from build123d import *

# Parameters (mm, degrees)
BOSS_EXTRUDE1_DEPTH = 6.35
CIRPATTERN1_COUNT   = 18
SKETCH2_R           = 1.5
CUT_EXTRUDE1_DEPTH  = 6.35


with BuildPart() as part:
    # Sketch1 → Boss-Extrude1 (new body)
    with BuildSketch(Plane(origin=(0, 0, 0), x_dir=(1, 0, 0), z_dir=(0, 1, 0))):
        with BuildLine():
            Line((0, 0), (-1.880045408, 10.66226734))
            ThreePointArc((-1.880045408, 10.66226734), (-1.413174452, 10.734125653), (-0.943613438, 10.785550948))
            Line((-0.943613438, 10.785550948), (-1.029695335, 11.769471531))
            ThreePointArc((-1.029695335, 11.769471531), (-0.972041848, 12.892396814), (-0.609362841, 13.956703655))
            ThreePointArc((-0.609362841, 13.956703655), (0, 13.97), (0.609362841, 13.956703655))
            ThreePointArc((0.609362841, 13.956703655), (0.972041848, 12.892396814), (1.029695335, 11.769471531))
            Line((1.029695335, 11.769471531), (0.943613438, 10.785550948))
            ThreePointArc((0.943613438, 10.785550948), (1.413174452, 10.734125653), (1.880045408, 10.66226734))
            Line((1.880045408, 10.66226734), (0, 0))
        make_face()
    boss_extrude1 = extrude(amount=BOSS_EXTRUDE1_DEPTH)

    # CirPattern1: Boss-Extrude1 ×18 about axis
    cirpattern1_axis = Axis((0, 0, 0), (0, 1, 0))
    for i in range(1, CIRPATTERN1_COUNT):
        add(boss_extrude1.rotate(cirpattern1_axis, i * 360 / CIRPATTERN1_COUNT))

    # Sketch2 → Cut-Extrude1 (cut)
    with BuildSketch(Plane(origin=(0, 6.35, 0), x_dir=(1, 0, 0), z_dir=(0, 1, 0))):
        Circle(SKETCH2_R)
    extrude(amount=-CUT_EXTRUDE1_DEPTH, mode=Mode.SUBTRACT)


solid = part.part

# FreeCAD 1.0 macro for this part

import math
import FreeCAD as App
import Part
import Sketcher

V = App.Vector
Q = App.Units.Quantity

doc = App.newDocument("Part")
body = doc.addObject("PartDesign::Body", "Body")

# Sketch on XZ plane
sketch1 = body.newObject("Sketcher::SketchObject", "Sketch")
sketch1.AttachmentSupport = (doc.getObject("XZ_Plane"), [""])
sketch1.MapMode = "FlatFace"
sketch1.addGeometry(Part.LineSegment(V(-1.9, -10.7, 0), V(0, 0, 0)), False)
sketch1.addGeometry(Part.LineSegment(V(0, 0, 0), V(1.9, -10.7, 0)), False)
sketch1.addGeometry(Part.ArcOfCircle(Part.Circle(V(0, 0, 0), V(0, 0, 1), 10.8), math.radians(-85), math.radians(-80)), False)
sketch1.addGeometry(Part.LineSegment(V(0.9, -10.8, 0), V(1, -11.8, 0)), False)
sketch1.addGeometry(Part.ArcOfCircle(Part.Circle(V(-3, -12.1, 0), V(0, 0, 1), 4.1), math.radians(-27), math.radians(5)), False)
sketch1.addGeometry(Part.ArcOfCircle(Part.Circle(V(0, 0, 0), V(0, 0, 1), 14), math.radians(-92.5), math.radians(-87.5)), False)
sketch1.addGeometry(Part.ArcOfCircle(Part.Circle(V(3, -12.1, 0), V(0, 0, 1), 4.1), math.radians(175), math.radians(207)), False)
sketch1.addGeometry(Part.LineSegment(V(-1, -11.8, 0), V(-0.9, -10.8, 0)), False)
sketch1.addGeometry(Part.ArcOfCircle(Part.Circle(V(0, 0, 0), V(0, 0, 1), 10.8), math.radians(-100), math.radians(-95)), False)
sketch1.addConstraint(Sketcher.Constraint("Coincident", 0, 2, 1, 1))
sketch1.addConstraint(Sketcher.Constraint("Coincident", 1, 2, 2, 2))
sketch1.addConstraint(Sketcher.Constraint("Coincident", 2, 1, 3, 1))
sketch1.addConstraint(Sketcher.Constraint("Tangent", 3, 2, 4, 2))
sketch1.addConstraint(Sketcher.Constraint("Coincident", 4, 1, 5, 2))
sketch1.addConstraint(Sketcher.Constraint("Coincident", 5, 1, 6, 2))
sketch1.addConstraint(Sketcher.Constraint("Tangent", 6, 1, 7, 1))
sketch1.addConstraint(Sketcher.Constraint("Coincident", 7, 2, 8, 2))
sketch1.addConstraint(Sketcher.Constraint("Coincident", 8, 1, 0, 1))
sketch1.addConstraint(Sketcher.Constraint("Coincident", 2, 3, -1, 1))
sketch1.addConstraint(Sketcher.Constraint("Coincident", 5, 3, -1, 1))
sketch1.addConstraint(Sketcher.Constraint("Coincident", 8, 3, -1, 1))
sketch1.addConstraint(Sketcher.Constraint("Coincident", 0, 2, -1, 1))
sketch1.addConstraint(Sketcher.Constraint("Equal", 4, 6))
sketch1.addConstraint(Sketcher.Constraint("Equal", 2, 8))
sketch1.addConstraint(Sketcher.Constraint("Symmetric", 4, 3, 6, 3, -2))
sketch1.addConstraint(Sketcher.Constraint("Horizontal", 3, 2, 6, 1))
sketch1.addConstraint(Sketcher.Constraint("Horizontal", 1, 2, 8, 1))
sketch1.addConstraint(Sketcher.Constraint("Radius", 5, Q("0.55 in")))
sketch1.addConstraint(Sketcher.Constraint("Angle", 0, Q("80 deg")))
sketch1.addConstraint(Sketcher.Constraint("Angle", 3, Q("-85 deg")))
sketch1.addConstraint(Sketcher.Constraint("Radius", 2, 10.82675))
sketch1.addConstraint(Sketcher.Constraint("Radius", 4, 4.070369))
sketch1.addConstraint(Sketcher.Constraint("DistanceX", 4, 3, 2, 1, 3.968799))
sketch1.addConstraint(Sketcher.Constraint("DistanceY", 2, 1, -1, 1, 10.785551))
pad1 = body.newObject("PartDesign::Pad", "Pad")
pad1.Profile = sketch1
pad1.Length = Q("0.25 in")
pad1.Reversed = True
doc.recompute()

polarpattern = body.newObject("PartDesign::PolarPattern", "PolarPattern")
polarpattern.Originals = [pad1]
polarpattern.Axis = (doc.getObject("Y_Axis"), [""])
polarpattern.Angle = 360
polarpattern.Occurrences = 18
body.Tip = polarpattern

# Sketch on XZ plane
sketch2 = body.newObject("Sketcher::SketchObject", "Sketch001")
sketch2.AttachmentSupport = (doc.getObject("XZ_Plane"), [""])
sketch2.MapMode = "FlatFace"
sketch2.AttachmentOffset = App.Placement(V(0, 0, -0.25 * 25.4), App.Rotation())
sketch2.addGeometry(Part.Circle(V(0, 0, 0), V(0, 0, 1), 1.5), False)
sketch2.addConstraint(Sketcher.Constraint("Coincident", 0, 3, -1, 1))
sketch2.addConstraint(Sketcher.Constraint("Diameter", 0, 3.0))
pocket1 = body.newObject("PartDesign::Pocket", "Pocket")
pocket1.Profile = sketch2
pocket1.Length = Q("0.25 in")
pocket1.Reversed = True

doc.recompute()
